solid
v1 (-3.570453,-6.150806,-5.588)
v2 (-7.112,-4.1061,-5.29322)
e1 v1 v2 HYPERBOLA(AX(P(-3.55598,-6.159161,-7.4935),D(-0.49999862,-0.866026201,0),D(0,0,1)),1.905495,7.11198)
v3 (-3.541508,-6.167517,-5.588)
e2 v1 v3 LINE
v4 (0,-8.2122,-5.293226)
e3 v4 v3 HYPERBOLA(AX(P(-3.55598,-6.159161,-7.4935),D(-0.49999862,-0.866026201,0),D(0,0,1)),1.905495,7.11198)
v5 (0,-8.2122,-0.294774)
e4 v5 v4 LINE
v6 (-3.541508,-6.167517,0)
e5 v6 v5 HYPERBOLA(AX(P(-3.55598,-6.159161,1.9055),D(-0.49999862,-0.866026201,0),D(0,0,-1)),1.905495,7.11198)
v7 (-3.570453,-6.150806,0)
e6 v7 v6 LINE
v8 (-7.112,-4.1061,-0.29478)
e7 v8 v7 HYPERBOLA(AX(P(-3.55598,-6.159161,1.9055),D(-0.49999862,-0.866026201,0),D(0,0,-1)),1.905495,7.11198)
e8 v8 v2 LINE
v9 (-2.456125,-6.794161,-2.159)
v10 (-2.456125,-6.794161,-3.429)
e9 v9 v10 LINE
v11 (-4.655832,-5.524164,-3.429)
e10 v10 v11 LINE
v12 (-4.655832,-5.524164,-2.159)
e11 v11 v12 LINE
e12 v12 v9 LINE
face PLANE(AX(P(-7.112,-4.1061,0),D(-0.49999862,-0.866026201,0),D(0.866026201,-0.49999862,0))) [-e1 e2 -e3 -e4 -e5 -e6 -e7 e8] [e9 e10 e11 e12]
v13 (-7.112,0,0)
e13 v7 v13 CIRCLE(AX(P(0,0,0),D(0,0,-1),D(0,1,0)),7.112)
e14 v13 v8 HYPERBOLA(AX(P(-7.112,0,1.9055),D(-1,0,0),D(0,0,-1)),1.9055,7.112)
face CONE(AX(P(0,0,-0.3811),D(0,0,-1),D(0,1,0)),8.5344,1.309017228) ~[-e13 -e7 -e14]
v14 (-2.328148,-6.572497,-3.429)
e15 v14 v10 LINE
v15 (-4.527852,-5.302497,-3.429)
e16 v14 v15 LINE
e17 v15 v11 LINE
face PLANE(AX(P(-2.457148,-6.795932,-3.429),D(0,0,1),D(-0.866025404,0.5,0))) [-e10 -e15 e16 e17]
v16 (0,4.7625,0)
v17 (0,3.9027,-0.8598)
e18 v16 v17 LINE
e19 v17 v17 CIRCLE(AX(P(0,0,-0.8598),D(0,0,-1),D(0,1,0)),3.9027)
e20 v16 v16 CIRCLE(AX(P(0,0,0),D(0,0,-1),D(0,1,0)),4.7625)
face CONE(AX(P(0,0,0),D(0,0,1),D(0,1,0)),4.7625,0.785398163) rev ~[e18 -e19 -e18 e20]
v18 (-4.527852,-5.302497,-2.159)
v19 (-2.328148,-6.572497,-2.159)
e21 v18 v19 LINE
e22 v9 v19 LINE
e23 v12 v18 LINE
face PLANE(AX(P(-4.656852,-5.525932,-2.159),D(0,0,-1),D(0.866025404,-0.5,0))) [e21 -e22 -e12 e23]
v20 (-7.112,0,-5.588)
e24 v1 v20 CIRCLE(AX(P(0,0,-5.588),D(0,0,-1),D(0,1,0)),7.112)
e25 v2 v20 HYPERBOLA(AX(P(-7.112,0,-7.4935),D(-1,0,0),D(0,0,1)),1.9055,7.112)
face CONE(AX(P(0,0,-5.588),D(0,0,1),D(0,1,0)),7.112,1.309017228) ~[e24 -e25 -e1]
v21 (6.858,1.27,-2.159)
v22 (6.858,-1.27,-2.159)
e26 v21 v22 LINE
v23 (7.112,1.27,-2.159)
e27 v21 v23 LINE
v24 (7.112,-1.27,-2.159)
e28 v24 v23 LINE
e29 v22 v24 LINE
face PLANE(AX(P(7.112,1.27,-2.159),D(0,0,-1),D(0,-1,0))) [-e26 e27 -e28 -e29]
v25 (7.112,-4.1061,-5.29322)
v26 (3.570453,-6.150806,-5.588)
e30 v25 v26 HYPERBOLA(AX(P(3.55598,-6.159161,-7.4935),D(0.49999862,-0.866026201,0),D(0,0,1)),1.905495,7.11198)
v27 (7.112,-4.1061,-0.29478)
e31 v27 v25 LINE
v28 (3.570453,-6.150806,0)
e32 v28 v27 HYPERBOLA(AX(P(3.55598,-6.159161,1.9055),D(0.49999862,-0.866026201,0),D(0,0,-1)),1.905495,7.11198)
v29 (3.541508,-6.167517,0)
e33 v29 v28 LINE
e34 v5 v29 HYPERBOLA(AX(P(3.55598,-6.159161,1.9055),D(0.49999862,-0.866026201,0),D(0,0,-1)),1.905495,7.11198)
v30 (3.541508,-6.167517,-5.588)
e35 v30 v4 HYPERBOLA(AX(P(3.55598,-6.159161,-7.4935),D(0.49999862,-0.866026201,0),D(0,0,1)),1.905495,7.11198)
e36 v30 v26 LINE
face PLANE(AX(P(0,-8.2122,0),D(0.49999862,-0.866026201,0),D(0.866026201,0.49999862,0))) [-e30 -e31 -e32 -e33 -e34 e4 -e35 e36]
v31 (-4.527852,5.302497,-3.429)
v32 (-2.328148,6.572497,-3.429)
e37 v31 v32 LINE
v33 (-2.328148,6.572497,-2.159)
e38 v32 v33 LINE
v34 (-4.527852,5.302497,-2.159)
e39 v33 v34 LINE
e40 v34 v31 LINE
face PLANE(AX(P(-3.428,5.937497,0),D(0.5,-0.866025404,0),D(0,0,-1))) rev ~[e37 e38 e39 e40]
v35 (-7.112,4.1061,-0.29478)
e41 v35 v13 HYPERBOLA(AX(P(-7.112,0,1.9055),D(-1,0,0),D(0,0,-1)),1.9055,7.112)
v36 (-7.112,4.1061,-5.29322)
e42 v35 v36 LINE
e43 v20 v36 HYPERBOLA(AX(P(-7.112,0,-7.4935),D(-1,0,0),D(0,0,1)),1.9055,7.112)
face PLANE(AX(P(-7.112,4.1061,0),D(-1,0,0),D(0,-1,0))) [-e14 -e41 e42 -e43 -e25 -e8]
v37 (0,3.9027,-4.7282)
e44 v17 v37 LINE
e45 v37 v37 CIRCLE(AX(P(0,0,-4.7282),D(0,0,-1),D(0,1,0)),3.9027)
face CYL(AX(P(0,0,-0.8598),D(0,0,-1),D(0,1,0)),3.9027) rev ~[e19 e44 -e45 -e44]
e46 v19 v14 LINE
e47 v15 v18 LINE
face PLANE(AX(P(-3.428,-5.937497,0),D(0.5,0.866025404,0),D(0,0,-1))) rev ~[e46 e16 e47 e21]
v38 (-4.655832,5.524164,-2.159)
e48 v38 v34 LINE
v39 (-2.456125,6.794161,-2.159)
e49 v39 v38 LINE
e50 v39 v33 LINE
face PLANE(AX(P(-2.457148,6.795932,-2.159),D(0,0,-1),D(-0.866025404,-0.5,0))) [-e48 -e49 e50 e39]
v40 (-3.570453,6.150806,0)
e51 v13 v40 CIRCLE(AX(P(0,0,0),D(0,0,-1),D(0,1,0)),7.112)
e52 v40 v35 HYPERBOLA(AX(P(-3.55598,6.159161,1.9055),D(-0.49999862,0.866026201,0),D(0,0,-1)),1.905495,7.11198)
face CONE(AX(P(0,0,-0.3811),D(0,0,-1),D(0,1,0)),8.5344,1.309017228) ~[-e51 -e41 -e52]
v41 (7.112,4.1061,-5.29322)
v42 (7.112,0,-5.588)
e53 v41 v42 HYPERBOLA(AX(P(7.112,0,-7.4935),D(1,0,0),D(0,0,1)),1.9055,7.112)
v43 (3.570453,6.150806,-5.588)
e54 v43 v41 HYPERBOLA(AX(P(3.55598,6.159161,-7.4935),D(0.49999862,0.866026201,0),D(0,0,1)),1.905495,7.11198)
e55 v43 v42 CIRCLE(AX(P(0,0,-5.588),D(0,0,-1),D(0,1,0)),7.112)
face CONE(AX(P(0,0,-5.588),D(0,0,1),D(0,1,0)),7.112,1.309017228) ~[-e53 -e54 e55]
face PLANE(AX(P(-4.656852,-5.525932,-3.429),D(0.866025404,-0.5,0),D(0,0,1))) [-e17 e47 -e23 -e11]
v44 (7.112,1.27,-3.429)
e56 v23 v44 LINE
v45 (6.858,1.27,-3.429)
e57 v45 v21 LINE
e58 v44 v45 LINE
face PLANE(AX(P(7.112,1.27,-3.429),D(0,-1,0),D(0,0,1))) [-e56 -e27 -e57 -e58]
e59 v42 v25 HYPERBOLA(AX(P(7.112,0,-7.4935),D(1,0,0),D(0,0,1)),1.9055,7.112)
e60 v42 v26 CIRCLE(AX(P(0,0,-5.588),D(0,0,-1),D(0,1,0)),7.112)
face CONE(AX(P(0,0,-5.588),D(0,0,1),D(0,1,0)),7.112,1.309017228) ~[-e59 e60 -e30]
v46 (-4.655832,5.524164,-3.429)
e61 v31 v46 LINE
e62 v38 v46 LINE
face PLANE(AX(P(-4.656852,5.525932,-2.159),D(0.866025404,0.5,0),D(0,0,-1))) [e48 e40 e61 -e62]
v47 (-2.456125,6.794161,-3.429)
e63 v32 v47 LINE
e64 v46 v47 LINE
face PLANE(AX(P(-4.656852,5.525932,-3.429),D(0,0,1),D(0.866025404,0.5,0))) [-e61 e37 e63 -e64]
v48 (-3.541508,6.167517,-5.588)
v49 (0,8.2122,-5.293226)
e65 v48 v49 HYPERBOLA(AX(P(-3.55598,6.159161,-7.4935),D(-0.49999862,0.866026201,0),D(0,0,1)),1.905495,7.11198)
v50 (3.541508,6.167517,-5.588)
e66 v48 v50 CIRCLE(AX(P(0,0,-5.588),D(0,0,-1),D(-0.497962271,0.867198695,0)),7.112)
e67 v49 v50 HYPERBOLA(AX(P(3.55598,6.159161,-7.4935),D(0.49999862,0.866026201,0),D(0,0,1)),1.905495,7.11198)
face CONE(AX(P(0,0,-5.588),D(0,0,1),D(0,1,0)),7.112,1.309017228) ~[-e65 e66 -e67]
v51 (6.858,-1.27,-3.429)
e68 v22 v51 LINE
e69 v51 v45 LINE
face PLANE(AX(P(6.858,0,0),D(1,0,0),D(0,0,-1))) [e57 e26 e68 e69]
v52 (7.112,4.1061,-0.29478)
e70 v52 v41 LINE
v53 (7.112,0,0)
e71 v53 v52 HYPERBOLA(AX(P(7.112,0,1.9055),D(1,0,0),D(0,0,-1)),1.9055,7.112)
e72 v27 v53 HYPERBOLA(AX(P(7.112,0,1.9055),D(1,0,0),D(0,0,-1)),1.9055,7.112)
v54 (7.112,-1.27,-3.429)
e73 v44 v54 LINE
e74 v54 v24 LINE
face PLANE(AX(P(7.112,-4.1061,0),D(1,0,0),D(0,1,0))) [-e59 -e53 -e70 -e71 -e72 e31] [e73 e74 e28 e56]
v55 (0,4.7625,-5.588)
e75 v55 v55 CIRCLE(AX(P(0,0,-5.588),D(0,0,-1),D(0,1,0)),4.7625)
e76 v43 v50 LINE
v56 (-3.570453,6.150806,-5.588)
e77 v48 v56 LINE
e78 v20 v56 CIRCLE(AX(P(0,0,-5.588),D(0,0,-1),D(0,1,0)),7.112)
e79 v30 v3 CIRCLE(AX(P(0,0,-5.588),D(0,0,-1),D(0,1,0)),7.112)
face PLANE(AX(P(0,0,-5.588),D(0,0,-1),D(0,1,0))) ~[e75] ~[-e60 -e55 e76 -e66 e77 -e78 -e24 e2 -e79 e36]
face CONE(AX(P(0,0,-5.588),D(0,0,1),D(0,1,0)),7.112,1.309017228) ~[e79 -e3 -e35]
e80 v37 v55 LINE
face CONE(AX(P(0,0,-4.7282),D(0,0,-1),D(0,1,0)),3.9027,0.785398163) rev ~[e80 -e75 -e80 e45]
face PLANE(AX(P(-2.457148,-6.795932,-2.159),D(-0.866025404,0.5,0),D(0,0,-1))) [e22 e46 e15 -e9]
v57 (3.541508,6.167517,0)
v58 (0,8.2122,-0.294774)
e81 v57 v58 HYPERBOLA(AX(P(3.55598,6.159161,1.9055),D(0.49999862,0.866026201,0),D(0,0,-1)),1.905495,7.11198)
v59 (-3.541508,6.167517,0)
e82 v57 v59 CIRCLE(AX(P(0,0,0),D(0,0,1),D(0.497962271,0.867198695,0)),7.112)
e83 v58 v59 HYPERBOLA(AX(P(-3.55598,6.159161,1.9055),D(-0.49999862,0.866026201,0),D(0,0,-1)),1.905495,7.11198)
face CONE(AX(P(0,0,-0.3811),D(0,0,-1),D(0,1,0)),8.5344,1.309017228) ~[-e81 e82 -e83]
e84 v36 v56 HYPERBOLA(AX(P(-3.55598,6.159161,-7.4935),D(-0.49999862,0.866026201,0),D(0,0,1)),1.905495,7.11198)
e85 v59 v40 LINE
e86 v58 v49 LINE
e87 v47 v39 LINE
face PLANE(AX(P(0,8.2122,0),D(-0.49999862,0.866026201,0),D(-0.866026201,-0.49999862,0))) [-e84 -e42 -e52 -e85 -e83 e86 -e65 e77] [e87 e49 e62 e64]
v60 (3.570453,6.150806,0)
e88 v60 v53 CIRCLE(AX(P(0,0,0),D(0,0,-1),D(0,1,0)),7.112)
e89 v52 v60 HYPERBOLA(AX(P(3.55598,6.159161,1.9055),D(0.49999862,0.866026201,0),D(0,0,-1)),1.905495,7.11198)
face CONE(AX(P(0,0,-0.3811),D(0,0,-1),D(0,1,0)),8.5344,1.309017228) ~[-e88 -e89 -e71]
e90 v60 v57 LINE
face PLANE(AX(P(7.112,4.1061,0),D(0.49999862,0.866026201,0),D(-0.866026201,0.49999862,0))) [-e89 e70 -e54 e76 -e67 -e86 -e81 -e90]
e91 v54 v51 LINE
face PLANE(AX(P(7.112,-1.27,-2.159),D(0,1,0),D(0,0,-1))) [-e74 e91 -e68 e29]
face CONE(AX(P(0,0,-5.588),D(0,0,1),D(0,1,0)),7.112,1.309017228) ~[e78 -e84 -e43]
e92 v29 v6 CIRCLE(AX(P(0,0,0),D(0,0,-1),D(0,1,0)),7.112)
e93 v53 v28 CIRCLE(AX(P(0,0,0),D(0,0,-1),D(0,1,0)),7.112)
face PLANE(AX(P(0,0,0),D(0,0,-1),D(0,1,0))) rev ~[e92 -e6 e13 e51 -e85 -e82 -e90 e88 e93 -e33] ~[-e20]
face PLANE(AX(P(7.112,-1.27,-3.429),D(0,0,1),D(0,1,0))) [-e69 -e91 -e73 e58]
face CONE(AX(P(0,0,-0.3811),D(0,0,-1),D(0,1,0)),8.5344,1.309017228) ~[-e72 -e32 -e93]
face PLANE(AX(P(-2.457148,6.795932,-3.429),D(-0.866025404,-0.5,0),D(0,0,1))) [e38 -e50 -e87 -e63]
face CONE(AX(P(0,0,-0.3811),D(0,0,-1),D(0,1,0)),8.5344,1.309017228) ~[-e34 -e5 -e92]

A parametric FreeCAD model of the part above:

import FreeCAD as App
import Part
import Sketcher

V = App.Vector
Q = App.Units.Quantity

doc = App.newDocument("Part")
body = doc.addObject("PartDesign::Body", "Body")

# Sketch on YZ plane
sketch1 = body.newObject("Sketcher::SketchObject", "Sketch")
sketch1.AttachmentSupport = (doc.getObject("YZ_Plane"), [""])
sketch1.MapMode = "FlatFace"
sketch1.addGeometry([
    Part.LineSegment(V(7.1, 0, 0), V(4.8, 0, 0)),  # 0
    Part.LineSegment(V(4.8, 0, 0), V(3.9, -0.9, 0)),  # 1
    Part.LineSegment(V(3.9, -0.9, 0), V(3.9, -4.7, 0)),  # 2
    Part.LineSegment(V(3.9, -4.7, 0), V(4.8, -5.6, 0)),  # 3
    Part.LineSegment(V(4.8, -5.6, 0), V(7.1, -5.6, 0)),  # 4
    Part.LineSegment(V(7.1, -5.6, 0), V(8.5, -5.2, 0)),  # 5
    Part.LineSegment(V(8.5, -5.2, 0), V(8.5, -0.4, 0)),  # 6
    Part.LineSegment(V(8.5, -0.4, 0), V(7.1, 0, 0)),  # 7
], False)
sketch1.addConstraint([
    Sketcher.Constraint("Coincident", 0, 2, 1, 1),
    Sketcher.Constraint("Coincident", 1, 2, 2, 1),
    Sketcher.Constraint("Coincident", 2, 2, 3, 1),
    Sketcher.Constraint("Coincident", 3, 2, 4, 1),
    Sketcher.Constraint("Coincident", 4, 2, 5, 1),
    Sketcher.Constraint("Coincident", 5, 2, 6, 1),
    Sketcher.Constraint("Coincident", 6, 2, 7, 1),
    Sketcher.Constraint("Coincident", 7, 2, 0, 1),
    Sketcher.Constraint("Horizontal", 0),
    Sketcher.Constraint("Vertical", 2),
    Sketcher.Constraint("Horizontal", 4),
    Sketcher.Constraint("Vertical", 6),
    Sketcher.Constraint("PointOnObject", 0, 2, -1),
    Sketcher.Constraint("Perpendicular", 1, 3),
    Sketcher.Constraint("Vertical", 0, 2, 3, 2),
    Sketcher.Constraint("Vertical", 4, 2, 7, 2),
    Sketcher.Constraint("Equal", 1, 3),
    Sketcher.Constraint("Equal", 5, 7),
    Sketcher.Constraint("Angle", 5, Q("14.9988 deg")),
    Sketcher.Constraint("DistanceY", 6, 1, 6, 2, Q("0.19 in")),
    Sketcher.Constraint("DistanceY", 3, 2, -1, 1, Q("0.22 in")),
    Sketcher.Constraint("DistanceX", -1, 1, 4, 2, Q("0.28 in")),
    Sketcher.Constraint("DistanceX", 0, 2, 0, 1, Q("0.0925 in")),
    Sketcher.Constraint("DistanceY", 2, 2, 2, 1, Q("0.1523 in")),
])
revolution = body.newObject("PartDesign::Revolution", "Revolution")
revolution.Profile = sketch1
revolution.ReferenceAxis = (sketch1, ["V_Axis"])
revolution.Angle = 360

# Sketch on XY plane
sketch2 = body.newObject("Sketcher::SketchObject", "Sketch001")
sketch2.AttachmentSupport = (doc.getObject("XY_Plane"), [""])
sketch2.MapMode = "FlatFace"
sketch2.addGeometry([
    Part.Circle(V(0, 0, 0), V(0, 0, 1), 15),  # 0
    Part.LineSegment(V(0, -8, 0), V(-7, -4, 0)),  # 1
    Part.LineSegment(V(-7, -4, 0), V(-7, 4, 0)),  # 2
    Part.LineSegment(V(-7, 4, 0), V(0, 8, 0)),  # 3
    Part.LineSegment(V(0, 8, 0), V(7, 4, 0)),  # 4
    Part.LineSegment(V(7, 4, 0), V(7, -4, 0)),  # 5
    Part.LineSegment(V(7, -4, 0), V(0, -8, 0)),  # 6
], False)
sketch2.addConstraint([
    Sketcher.Constraint("Coincident", 1, 2, 2, 1),
    Sketcher.Constraint("Coincident", 2, 2, 3, 1),
    Sketcher.Constraint("Coincident", 3, 2, 4, 1),
    Sketcher.Constraint("Coincident", 4, 2, 5, 1),
    Sketcher.Constraint("Coincident", 5, 2, 6, 1),
    Sketcher.Constraint("Coincident", 6, 2, 1, 1),
    Sketcher.Constraint("Vertical", 2),
    Sketcher.Constraint("Vertical", 5),
    Sketcher.Constraint("Coincident", 0, 3, -1, 1),
    Sketcher.Constraint("Symmetric", 1, 2, 4, 2, -1, 1),
    Sketcher.Constraint("Symmetric", 3, 2, 6, 2, -1, 1),
    Sketcher.Constraint("PointOnObject", 3, 2, -2),
    Sketcher.Constraint("Parallel", 3, 6),
    Sketcher.Constraint("Horizontal", 2, 2, 4, 2),
    Sketcher.Constraint("Diameter", 0, Q("1.2 in")),
    Sketcher.Constraint("Angle", 1, Q("150 deg")),
    Sketcher.Constraint("DistanceX", 1, 2, -1, 1, Q("0.28 in")),
    Sketcher.Constraint("DistanceY", 2, 1, 2, 2, Q("8.2122 mm")),
])
pocket1 = body.newObject("PartDesign::Pocket", "Pocket")
pocket1.Profile = sketch2
pocket1.Length = Q("0.22 in")

# Sketch on YZ plane
sketch3 = body.newObject("Sketcher::SketchObject", "Sketch002")
sketch3.AttachmentSupport = (doc.getObject("YZ_Plane"), [""])
sketch3.MapMode = "FlatFace"
sketch3.AttachmentOffset = App.Placement(V(0, 0, 0.28 * 25.4), App.Rotation())
sketch3.addGeometry([
    Part.LineSegment(V(1.3, -3.4, 0), V(1.3, -2.2, 0)),
    Part.LineSegment(V(1.3, -2.2, 0), V(-1.3, -2.2, 0)),
    Part.LineSegment(V(-1.3, -2.2, 0), V(-1.3, -3.4, 0)),
    Part.LineSegment(V(-1.3, -3.4, 0), V(1.3, -3.4, 0)),
], False)
sketch3.addConstraint([
    Sketcher.Constraint("Coincident", 0, 2, 1, 1),
    Sketcher.Constraint("Coincident", 1, 2, 2, 1),
    Sketcher.Constraint("Coincident", 2, 2, 3, 1),
    Sketcher.Constraint("Coincident", 3, 2, 0, 1),
    Sketcher.Constraint("Vertical", 0),
    Sketcher.Constraint("Horizontal", 1),
    Sketcher.Constraint("Vertical", 2),
    Sketcher.Constraint("Horizontal", 3),
    Sketcher.Constraint("DistanceX", 1, 2, 1, 1, Q("0.1 in")),
    Sketcher.Constraint("DistanceY", 0, 1, 0, 2, Q("0.05 in")),
    Sketcher.Constraint("DistanceX", -1, 1, 0, 2, Q("0.05 in")),
    Sketcher.Constraint("DistanceY", 0, 2, -1, 1, Q("0.085 in")),
])
pocket2 = body.newObject("PartDesign::Pocket", "Pocket001")
pocket2.Profile = sketch3
pocket2.Length = Q("0.02 in")
pocket2.Midplane = True

# Sketch on an angled plane
sketch4 = body.newObject("Sketcher::SketchObject", "Sketch003")
sketch4.Placement = App.Placement(V(-3.556, 6.1592, 0), App.Rotation(V(0, 0, -1), V(0.866025404, 0.5, 0), V(0.5, -0.866025404, 0), "ZXY"))
sketch4.addGeometry([
    Part.LineSegment(V(3.4, 1.3, 0), V(2.2, 1.3, 0)),
    Part.LineSegment(V(2.2, 1.3, 0), V(2.2, -1.3, 0)),
    Part.LineSegment(V(2.2, -1.3, 0), V(3.4, -1.3, 0)),
    Part.LineSegment(V(3.4, -1.3, 0), V(3.4, 1.3, 0)),
], False)
sketch4.addConstraint([
    Sketcher.Constraint("Coincident", 0, 2, 1, 1),
    Sketcher.Constraint("Coincident", 1, 2, 2, 1),
    Sketcher.Constraint("Coincident", 2, 2, 3, 1),
    Sketcher.Constraint("Coincident", 3, 2, 0, 1),
    Sketcher.Constraint("Horizontal", 0),
    Sketcher.Constraint("Vertical", 1),
    Sketcher.Constraint("Horizontal", 2),
    Sketcher.Constraint("Vertical", 3),
    Sketcher.Constraint("DistanceY", 1, 2, 1, 1, Q("0.1 in")),
    Sketcher.Constraint("DistanceX", 0, 2, 0, 1, Q("0.05 in")),
    Sketcher.Constraint("DistanceY", -1, 1, 0, 2, Q("0.05 in")),
    Sketcher.Constraint("DistanceX", -1, 1, 0, 2, Q("0.085 in")),
])
pocket3 = body.newObject("PartDesign::Pocket", "Pocket002")
pocket3.Profile = sketch4
pocket3.Length = Q("0.02 in")
pocket3.Midplane = True

# Sketch on an angled plane
sketch5 = body.newObject("Sketcher::SketchObject", "Sketch004")
sketch5.Placement = App.Placement(V(-3.556, -6.1592, 0), App.Rotation(V(0, 0, -1), V(-0.866025404, 0.5, 0), V(0.5, 0.866025404, 0), "ZXY"))
sketch5.addGeometry([
    Part.LineSegment(V(3.4, 1.3, 0), V(2.2, 1.3, 0)),
    Part.LineSegment(V(2.2, 1.3, 0), V(2.2, -1.3, 0)),
    Part.LineSegment(V(2.2, -1.3, 0), V(3.4, -1.3, 0)),
    Part.LineSegment(V(3.4, -1.3, 0), V(3.4, 1.3, 0)),
], False)
sketch5.addConstraint([
    Sketcher.Constraint("Coincident", 0, 2, 1, 1),
    Sketcher.Constraint("Coincident", 1, 2, 2, 1),
    Sketcher.Constraint("Coincident", 2, 2, 3, 1),
    Sketcher.Constraint("Coincident", 3, 2, 0, 1),
    Sketcher.Constraint("Horizontal", 0),
    Sketcher.Constraint("Vertical", 1),
    Sketcher.Constraint("Horizontal", 2),
    Sketcher.Constraint("Vertical", 3),
    Sketcher.Constraint("DistanceY", 1, 2, 1, 1, Q("0.1 in")),
    Sketcher.Constraint("DistanceX", 0, 2, 0, 1, Q("0.05 in")),
    Sketcher.Constraint("DistanceY", -1, 1, 0, 2, Q("0.05 in")),
    Sketcher.Constraint("DistanceX", -1, 1, 0, 2, Q("0.085 in")),
])
pocket4 = body.newObject("PartDesign::Pocket", "Pocket003")
pocket4.Profile = sketch5
pocket4.Length = Q("0.02 in")
pocket4.Midplane = True

doc.recompute()
